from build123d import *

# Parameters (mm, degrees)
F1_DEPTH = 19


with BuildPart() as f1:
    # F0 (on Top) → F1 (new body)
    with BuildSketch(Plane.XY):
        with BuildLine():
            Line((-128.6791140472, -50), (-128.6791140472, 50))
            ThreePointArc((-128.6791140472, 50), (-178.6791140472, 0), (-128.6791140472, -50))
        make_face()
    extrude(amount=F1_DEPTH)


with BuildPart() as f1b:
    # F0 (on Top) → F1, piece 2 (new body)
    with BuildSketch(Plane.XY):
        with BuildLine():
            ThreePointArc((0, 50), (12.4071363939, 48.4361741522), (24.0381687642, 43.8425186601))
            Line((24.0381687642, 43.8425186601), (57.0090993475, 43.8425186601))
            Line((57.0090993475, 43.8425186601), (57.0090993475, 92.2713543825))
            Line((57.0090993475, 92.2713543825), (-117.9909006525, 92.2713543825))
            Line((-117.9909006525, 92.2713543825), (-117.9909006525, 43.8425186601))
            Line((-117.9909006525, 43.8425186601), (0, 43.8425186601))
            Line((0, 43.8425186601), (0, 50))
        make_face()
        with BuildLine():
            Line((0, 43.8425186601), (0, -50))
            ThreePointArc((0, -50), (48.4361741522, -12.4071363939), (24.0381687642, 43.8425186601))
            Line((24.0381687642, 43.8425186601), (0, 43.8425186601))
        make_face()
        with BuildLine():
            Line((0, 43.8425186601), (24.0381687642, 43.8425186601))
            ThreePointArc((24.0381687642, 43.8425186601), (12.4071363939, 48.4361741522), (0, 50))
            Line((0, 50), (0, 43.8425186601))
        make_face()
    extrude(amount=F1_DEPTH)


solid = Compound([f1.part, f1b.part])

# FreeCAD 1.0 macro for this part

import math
import FreeCAD as App
import Part
import Sketcher

V = App.Vector

doc = App.newDocument("Part")
body = doc.addObject("PartDesign::Body", "Body")

# Sketch on XY plane
sketch1 = body.newObject("Sketcher::SketchObject", "Sketch")
sketch1.AttachmentSupport = (doc.getObject("XY_Plane"), [""])
sketch1.MapMode = "FlatFace"
sketch1.addGeometry(Part.LineSegment(V(-129, -50, 0), V(-129, 50, 0)), False)
sketch1.addGeometry(Part.ArcOfCircle(Part.Circle(V(-129, 0, 0), V(0, 0, 1), 50), math.radians(90), math.radians(270)), False)
sketch1.addConstraint(Sketcher.Constraint("Coincident", 0, 1, 1, 2))
sketch1.addConstraint(Sketcher.Constraint("Coincident", 1, 1, 0, 2))
sketch1.addConstraint(Sketcher.Constraint("Vertical", 0))
sketch1.addConstraint(Sketcher.Constraint("PointOnObject", 1, 3, -1))
sketch1.addConstraint(Sketcher.Constraint("Vertical", 1, 3, 0, 1))
sketch1.addConstraint(Sketcher.Constraint("Radius", 1, 50.0))
sketch1.addConstraint(Sketcher.Constraint("DistanceX", 1, 3, -1, 1, 128.679114))
pad1 = body.newObject("PartDesign::Pad", "Pad")
pad1.Profile = sketch1
pad1.Length = 19
body2 = doc.addObject("PartDesign::Body", "Body001")

# Sketch on XY plane
sketch2 = body2.newObject("Sketcher::SketchObject", "Sketch001")
sketch2.AttachmentSupport = (doc.getObject("XY_Plane001"), [""])
sketch2.MapMode = "FlatFace"
sketch2.addGeometry(Part.LineSegment(V(24, 44, 0), V(57, 44, 0)), False)
sketch2.addGeometry(Part.LineSegment(V(57, 44, 0), V(57, 92, 0)), False)
sketch2.addGeometry(Part.LineSegment(V(57, 92, 0), V(-118, 92, 0)), False)
sketch2.addGeometry(Part.LineSegment(V(-118, 92, 0), V(-118, 44, 0)), False)
sketch2.addGeometry(Part.LineSegment(V(-118, 44, 0), V(0, 44, 0)), False)
sketch2.addGeometry(Part.LineSegment(V(0, 44, 0), V(0, -50, 0)), False)
sketch2.addGeometry(Part.ArcOfCircle(Part.Circle(V(0, 0, 0), V(0, 0, 1), 50), math.radians(-90), math.radians(61)), False)
sketch2.addConstraint(Sketcher.Constraint("Coincident", 0, 2, 1, 1))
sketch2.addConstraint(Sketcher.Constraint("Coincident", 1, 2, 2, 1))
sketch2.addConstraint(Sketcher.Constraint("Coincident", 2, 2, 3, 1))
sketch2.addConstraint(Sketcher.Constraint("Coincident", 3, 2, 4, 1))
sketch2.addConstraint(Sketcher.Constraint("Coincident", 4, 2, 5, 1))
sketch2.addConstraint(Sketcher.Constraint("Coincident", 5, 2, 6, 1))
sketch2.addConstraint(Sketcher.Constraint("Coincident", 6, 2, 0, 1))
sketch2.addConstraint(Sketcher.Constraint("Horizontal", 0))
sketch2.addConstraint(Sketcher.Constraint("Vertical", 1))
sketch2.addConstraint(Sketcher.Constraint("Horizontal", 2))
sketch2.addConstraint(Sketcher.Constraint("Vertical", 3))
sketch2.addConstraint(Sketcher.Constraint("Horizontal", 4))
sketch2.addConstraint(Sketcher.Constraint("Vertical", 5))
sketch2.addConstraint(Sketcher.Constraint("Coincident", 6, 3, -1, 1))
sketch2.addConstraint(Sketcher.Constraint("PointOnObject", 4, 2, -2))
sketch2.addConstraint(Sketcher.Constraint("Horizontal", 0, 2, 3, 2))
sketch2.addConstraint(Sketcher.Constraint("Radius", 6, 50.0))
sketch2.addConstraint(Sketcher.Constraint("DistanceX", 2, 2, 2, 1, 175.0))
sketch2.addConstraint(Sketcher.Constraint("DistanceX", 4, 1, 4, 2, 117.990901))
sketch2.addConstraint(Sketcher.Constraint("DistanceX", 0, 1, 0, 2, 32.970931))
sketch2.addConstraint(Sketcher.Constraint("DistanceY", 1, 1, 1, 2, 48.428836))
pad2 = body2.newObject("PartDesign::Pad", "Pad001")
pad2.Profile = sketch2
pad2.Length = 19

doc.recompute()
